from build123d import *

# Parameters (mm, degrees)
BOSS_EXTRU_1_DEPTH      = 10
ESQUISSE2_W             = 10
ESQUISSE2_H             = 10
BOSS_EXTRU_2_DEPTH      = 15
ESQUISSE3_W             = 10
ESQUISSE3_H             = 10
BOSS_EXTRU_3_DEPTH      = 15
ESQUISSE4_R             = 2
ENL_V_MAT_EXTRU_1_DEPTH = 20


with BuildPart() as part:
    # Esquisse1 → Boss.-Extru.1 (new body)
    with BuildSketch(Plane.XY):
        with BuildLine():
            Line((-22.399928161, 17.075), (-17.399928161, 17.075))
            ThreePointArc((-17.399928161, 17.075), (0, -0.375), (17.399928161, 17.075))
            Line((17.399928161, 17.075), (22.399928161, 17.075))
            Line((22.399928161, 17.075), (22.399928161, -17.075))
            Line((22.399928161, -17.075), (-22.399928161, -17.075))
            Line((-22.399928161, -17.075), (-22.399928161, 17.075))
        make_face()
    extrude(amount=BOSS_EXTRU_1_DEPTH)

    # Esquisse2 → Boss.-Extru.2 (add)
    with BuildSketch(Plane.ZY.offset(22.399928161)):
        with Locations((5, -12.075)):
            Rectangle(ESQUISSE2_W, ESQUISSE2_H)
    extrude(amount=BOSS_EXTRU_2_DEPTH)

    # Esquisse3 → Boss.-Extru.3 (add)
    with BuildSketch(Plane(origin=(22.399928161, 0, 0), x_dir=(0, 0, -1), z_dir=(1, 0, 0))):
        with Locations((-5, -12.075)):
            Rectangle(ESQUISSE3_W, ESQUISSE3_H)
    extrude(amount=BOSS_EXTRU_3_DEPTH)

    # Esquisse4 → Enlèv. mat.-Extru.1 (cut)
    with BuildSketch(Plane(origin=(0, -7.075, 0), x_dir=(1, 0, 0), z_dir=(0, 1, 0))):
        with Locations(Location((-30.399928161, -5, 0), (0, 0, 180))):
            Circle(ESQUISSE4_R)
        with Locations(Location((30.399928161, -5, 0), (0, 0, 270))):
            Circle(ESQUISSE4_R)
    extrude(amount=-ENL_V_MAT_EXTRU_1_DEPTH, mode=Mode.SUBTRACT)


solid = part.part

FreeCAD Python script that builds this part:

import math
import FreeCAD as App
import Part
import Sketcher
Q = App.Units.Quantity


def add_polygon(sketch, points):
    """Adds a closed chain of lines whose ends are joined by coincident constraints."""
    first, n = sketch.GeometryCount, len(points)
    for a, b in zip(points, points[1:] + points[:1]):
        sketch.addGeometry(Part.LineSegment(App.Vector(*a, 0), App.Vector(*b, 0)), False)
    for i in range(n):
        sketch.addConstraint(Sketcher.Constraint("Coincident", first + i, 2, first + (i + 1) % n, 1))

doc = App.newDocument("Part")
params = doc.addObject("Spreadsheet::Sheet", "Params")
for row, (alias, value) in enumerate([
    ("sketch1_radius", "17.4 mm"),
    ("sketch1_width", "5 mm"),
    ("sketch1_height", "34.15 mm"),
    ("pad1_length", "10 mm"),
    ("sketch2_width", "10 mm"),
    ("pad2_length", "15 mm"),
    ("sketch3_width", "10 mm"),
    ("pad3_length", "15 mm"),
    ("sketch4_diameter", "4 mm"),
    ("pocket1_length", "20 mm"),
], start=1):
    params.set(f"A{row}", alias)
    params.set(f"B{row}", "=" + value)
    params.setAlias(f"B{row}", alias)

body = doc.addObject("PartDesign::Body", "Body")

sketch1 = body.newObject("Sketcher::SketchObject", "Sketch")
sketch1.AttachmentSupport = (doc.getObject("XY_Plane"), [""])
sketch1.MapMode = "FlatFace"
sketch1.addGeometry(Part.LineSegment(App.Vector(-17.399928, 17.075, 0), App.Vector(-22.399928, 17.075, 0)), False)
sketch1.addGeometry(Part.LineSegment(App.Vector(-22.399928, 17.075, 0), App.Vector(-22.399928, -17.075, 0)), False)
sketch1.addGeometry(Part.LineSegment(App.Vector(-22.399928, -17.075, 0), App.Vector(22.399928, -17.075, 0)), False)
sketch1.addGeometry(Part.LineSegment(App.Vector(22.399928, -17.075, 0), App.Vector(22.399928, 17.075, 0)), False)
sketch1.addGeometry(Part.LineSegment(App.Vector(22.399928, 17.075, 0), App.Vector(17.399928, 17.075, 0)), False)
sketch1.addGeometry(Part.ArcOfCircle(Part.Circle(App.Vector(0, 17.025, 0), App.Vector(0, 0, 1), 17.4), math.radians(179.835357), math.radians(360.164643)), False)
sketch1.addConstraint(Sketcher.Constraint("Coincident", 0, 2, 1, 1))
sketch1.addConstraint(Sketcher.Constraint("Coincident", 1, 2, 2, 1))
sketch1.addConstraint(Sketcher.Constraint("Coincident", 2, 2, 3, 1))
sketch1.addConstraint(Sketcher.Constraint("Coincident", 3, 2, 4, 1))
sketch1.addConstraint(Sketcher.Constraint("Coincident", 4, 2, 5, 2))
sketch1.addConstraint(Sketcher.Constraint("Coincident", 5, 1, 0, 1))
sketch1.addConstraint(Sketcher.Constraint("Horizontal", 0))
sketch1.addConstraint(Sketcher.Constraint("Vertical", 1))
sketch1.addConstraint(Sketcher.Constraint("Horizontal", 2))
sketch1.addConstraint(Sketcher.Constraint("Vertical", 3))
sketch1.addConstraint(Sketcher.Constraint("Horizontal", 4))
sketch1.addConstraint(Sketcher.Constraint("Symmetric", 0, 2, 2, 2, -1, 1))
sketch1.addConstraint(Sketcher.Constraint("Symmetric", 4, 2, 5, 1, -2))
sketch1.addConstraint(Sketcher.Constraint("Radius", 5, Q("17.4 mm")))
sketch1.addConstraint(Sketcher.Constraint("DistanceX", 0, 2, 0, 1, Q("5 mm")))
sketch1.addConstraint(Sketcher.Constraint("DistanceY", 1, 2, 1, 1, Q("34.15 mm")))
sketch1.addConstraint(Sketcher.Constraint("DistanceY", 1, 2, 5, 3, Q("34.1 mm")))
sketch1.setExpression("Constraints[13]", "Params.sketch1_radius")
sketch1.setExpression("Constraints[14]", "Params.sketch1_width")
sketch1.setExpression("Constraints[15]", "Params.sketch1_height")
pad1 = body.newObject("PartDesign::Pad", "Pad")
pad1.Profile = sketch1
pad1.setExpression("Length", "Params.pad1_length")

sketch2 = body.newObject("Sketcher::SketchObject", "Sketch001")
sketch2.AttachmentSupport = (doc.getObject("YZ_Plane"), [""])
sketch2.MapMode = "FlatFace"
sketch2.AttachmentOffset = App.Placement(App.Vector(0, 0, -22.399928), App.Rotation())
add_polygon(sketch2, [(-7.075, 0), (-17.075, 0), (-17.075, 10), (-7.075, 10)])
sketch2.addConstraint(Sketcher.Constraint("Horizontal", 0))
sketch2.addConstraint(Sketcher.Constraint("Vertical", 1))
sketch2.addConstraint(Sketcher.Constraint("Horizontal", 2))
sketch2.addConstraint(Sketcher.Constraint("Vertical", 3))
sketch2.addConstraint(Sketcher.Constraint("PointOnObject", 0, 2, -1))
sketch2.addConstraint(Sketcher.Constraint("Equal", 2, 1))
sketch2.addConstraint(Sketcher.Constraint("DistanceX", 0, 2, 0, 1, Q("10 mm")))
sketch2.addConstraint(Sketcher.Constraint("DistanceX", 0, 2, -1, 1, Q("17.075 mm")))
sketch2.setExpression("Constraints[10]", "Params.sketch2_width")
pad2 = body.newObject("PartDesign::Pad", "Pad001")
pad2.Profile = sketch2
pad2.setExpression("Length", "Params.pad2_length")
pad2.Reversed = True

sketch3 = body.newObject("Sketcher::SketchObject", "Sketch002")
sketch3.AttachmentSupport = (doc.getObject("YZ_Plane"), [""])
sketch3.MapMode = "FlatFace"
sketch3.AttachmentOffset = App.Placement(App.Vector(0, 0, 22.399928), App.Rotation())
add_polygon(sketch3, [(-7.075, 10), (-17.075, 10), (-17.075, 0), (-7.075, 0)])
sketch3.addConstraint(Sketcher.Constraint("Horizontal", 0))
sketch3.addConstraint(Sketcher.Constraint("Vertical", 1))
sketch3.addConstraint(Sketcher.Constraint("Horizontal", 2))
sketch3.addConstraint(Sketcher.Constraint("Vertical", 3))
sketch3.addConstraint(Sketcher.Constraint("PointOnObject", 1, 2, -1))
sketch3.addConstraint(Sketcher.Constraint("Equal", 2, 1))
sketch3.addConstraint(Sketcher.Constraint("DistanceX", 0, 2, 0, 1, Q("10 mm")))
sketch3.addConstraint(Sketcher.Constraint("DistanceX", 0, 2, -1, 1, Q("17.075 mm")))
sketch3.setExpression("Constraints[10]", "Params.sketch3_width")
pad3 = body.newObject("PartDesign::Pad", "Pad002")
pad3.Profile = sketch3
pad3.setExpression("Length", "Params.pad3_length")

sketch4 = body.newObject("Sketcher::SketchObject", "Sketch003")
sketch4.AttachmentSupport = (doc.getObject("XZ_Plane"), [""])
sketch4.MapMode = "FlatFace"
sketch4.AttachmentOffset = App.Placement(App.Vector(0, 0, 7.075), App.Rotation())
sketch4.addGeometry(Part.Circle(App.Vector(-30.399928, 5, 0), App.Vector(0, 0, 1), 2), False)
sketch4.addGeometry(Part.Circle(App.Vector(30.399928, 5, 0), App.Vector(0, 0, 1), 2), False)
sketch4.addConstraint(Sketcher.Constraint("Equal", 0, 1))
sketch4.addConstraint(Sketcher.Constraint("Symmetric", 0, 3, 1, 3, -2))
sketch4.addConstraint(Sketcher.Constraint("Diameter", 0, Q("4 mm")))
sketch4.addConstraint(Sketcher.Constraint("DistanceY", -1, 1, 0, 3, Q("5 mm")))
sketch4.addConstraint(Sketcher.Constraint("DistanceX", 0, 3, -1, 1, Q("30.399928 mm")))
sketch4.setExpression("Constraints[2]", "Params.sketch4_diameter")
pocket1 = body.newObject("PartDesign::Pocket", "Pocket")
pocket1.Profile = sketch4
pocket1.setExpression("Length", "Params.pocket1_length")
pocket1.Reversed = True

doc.recompute()
